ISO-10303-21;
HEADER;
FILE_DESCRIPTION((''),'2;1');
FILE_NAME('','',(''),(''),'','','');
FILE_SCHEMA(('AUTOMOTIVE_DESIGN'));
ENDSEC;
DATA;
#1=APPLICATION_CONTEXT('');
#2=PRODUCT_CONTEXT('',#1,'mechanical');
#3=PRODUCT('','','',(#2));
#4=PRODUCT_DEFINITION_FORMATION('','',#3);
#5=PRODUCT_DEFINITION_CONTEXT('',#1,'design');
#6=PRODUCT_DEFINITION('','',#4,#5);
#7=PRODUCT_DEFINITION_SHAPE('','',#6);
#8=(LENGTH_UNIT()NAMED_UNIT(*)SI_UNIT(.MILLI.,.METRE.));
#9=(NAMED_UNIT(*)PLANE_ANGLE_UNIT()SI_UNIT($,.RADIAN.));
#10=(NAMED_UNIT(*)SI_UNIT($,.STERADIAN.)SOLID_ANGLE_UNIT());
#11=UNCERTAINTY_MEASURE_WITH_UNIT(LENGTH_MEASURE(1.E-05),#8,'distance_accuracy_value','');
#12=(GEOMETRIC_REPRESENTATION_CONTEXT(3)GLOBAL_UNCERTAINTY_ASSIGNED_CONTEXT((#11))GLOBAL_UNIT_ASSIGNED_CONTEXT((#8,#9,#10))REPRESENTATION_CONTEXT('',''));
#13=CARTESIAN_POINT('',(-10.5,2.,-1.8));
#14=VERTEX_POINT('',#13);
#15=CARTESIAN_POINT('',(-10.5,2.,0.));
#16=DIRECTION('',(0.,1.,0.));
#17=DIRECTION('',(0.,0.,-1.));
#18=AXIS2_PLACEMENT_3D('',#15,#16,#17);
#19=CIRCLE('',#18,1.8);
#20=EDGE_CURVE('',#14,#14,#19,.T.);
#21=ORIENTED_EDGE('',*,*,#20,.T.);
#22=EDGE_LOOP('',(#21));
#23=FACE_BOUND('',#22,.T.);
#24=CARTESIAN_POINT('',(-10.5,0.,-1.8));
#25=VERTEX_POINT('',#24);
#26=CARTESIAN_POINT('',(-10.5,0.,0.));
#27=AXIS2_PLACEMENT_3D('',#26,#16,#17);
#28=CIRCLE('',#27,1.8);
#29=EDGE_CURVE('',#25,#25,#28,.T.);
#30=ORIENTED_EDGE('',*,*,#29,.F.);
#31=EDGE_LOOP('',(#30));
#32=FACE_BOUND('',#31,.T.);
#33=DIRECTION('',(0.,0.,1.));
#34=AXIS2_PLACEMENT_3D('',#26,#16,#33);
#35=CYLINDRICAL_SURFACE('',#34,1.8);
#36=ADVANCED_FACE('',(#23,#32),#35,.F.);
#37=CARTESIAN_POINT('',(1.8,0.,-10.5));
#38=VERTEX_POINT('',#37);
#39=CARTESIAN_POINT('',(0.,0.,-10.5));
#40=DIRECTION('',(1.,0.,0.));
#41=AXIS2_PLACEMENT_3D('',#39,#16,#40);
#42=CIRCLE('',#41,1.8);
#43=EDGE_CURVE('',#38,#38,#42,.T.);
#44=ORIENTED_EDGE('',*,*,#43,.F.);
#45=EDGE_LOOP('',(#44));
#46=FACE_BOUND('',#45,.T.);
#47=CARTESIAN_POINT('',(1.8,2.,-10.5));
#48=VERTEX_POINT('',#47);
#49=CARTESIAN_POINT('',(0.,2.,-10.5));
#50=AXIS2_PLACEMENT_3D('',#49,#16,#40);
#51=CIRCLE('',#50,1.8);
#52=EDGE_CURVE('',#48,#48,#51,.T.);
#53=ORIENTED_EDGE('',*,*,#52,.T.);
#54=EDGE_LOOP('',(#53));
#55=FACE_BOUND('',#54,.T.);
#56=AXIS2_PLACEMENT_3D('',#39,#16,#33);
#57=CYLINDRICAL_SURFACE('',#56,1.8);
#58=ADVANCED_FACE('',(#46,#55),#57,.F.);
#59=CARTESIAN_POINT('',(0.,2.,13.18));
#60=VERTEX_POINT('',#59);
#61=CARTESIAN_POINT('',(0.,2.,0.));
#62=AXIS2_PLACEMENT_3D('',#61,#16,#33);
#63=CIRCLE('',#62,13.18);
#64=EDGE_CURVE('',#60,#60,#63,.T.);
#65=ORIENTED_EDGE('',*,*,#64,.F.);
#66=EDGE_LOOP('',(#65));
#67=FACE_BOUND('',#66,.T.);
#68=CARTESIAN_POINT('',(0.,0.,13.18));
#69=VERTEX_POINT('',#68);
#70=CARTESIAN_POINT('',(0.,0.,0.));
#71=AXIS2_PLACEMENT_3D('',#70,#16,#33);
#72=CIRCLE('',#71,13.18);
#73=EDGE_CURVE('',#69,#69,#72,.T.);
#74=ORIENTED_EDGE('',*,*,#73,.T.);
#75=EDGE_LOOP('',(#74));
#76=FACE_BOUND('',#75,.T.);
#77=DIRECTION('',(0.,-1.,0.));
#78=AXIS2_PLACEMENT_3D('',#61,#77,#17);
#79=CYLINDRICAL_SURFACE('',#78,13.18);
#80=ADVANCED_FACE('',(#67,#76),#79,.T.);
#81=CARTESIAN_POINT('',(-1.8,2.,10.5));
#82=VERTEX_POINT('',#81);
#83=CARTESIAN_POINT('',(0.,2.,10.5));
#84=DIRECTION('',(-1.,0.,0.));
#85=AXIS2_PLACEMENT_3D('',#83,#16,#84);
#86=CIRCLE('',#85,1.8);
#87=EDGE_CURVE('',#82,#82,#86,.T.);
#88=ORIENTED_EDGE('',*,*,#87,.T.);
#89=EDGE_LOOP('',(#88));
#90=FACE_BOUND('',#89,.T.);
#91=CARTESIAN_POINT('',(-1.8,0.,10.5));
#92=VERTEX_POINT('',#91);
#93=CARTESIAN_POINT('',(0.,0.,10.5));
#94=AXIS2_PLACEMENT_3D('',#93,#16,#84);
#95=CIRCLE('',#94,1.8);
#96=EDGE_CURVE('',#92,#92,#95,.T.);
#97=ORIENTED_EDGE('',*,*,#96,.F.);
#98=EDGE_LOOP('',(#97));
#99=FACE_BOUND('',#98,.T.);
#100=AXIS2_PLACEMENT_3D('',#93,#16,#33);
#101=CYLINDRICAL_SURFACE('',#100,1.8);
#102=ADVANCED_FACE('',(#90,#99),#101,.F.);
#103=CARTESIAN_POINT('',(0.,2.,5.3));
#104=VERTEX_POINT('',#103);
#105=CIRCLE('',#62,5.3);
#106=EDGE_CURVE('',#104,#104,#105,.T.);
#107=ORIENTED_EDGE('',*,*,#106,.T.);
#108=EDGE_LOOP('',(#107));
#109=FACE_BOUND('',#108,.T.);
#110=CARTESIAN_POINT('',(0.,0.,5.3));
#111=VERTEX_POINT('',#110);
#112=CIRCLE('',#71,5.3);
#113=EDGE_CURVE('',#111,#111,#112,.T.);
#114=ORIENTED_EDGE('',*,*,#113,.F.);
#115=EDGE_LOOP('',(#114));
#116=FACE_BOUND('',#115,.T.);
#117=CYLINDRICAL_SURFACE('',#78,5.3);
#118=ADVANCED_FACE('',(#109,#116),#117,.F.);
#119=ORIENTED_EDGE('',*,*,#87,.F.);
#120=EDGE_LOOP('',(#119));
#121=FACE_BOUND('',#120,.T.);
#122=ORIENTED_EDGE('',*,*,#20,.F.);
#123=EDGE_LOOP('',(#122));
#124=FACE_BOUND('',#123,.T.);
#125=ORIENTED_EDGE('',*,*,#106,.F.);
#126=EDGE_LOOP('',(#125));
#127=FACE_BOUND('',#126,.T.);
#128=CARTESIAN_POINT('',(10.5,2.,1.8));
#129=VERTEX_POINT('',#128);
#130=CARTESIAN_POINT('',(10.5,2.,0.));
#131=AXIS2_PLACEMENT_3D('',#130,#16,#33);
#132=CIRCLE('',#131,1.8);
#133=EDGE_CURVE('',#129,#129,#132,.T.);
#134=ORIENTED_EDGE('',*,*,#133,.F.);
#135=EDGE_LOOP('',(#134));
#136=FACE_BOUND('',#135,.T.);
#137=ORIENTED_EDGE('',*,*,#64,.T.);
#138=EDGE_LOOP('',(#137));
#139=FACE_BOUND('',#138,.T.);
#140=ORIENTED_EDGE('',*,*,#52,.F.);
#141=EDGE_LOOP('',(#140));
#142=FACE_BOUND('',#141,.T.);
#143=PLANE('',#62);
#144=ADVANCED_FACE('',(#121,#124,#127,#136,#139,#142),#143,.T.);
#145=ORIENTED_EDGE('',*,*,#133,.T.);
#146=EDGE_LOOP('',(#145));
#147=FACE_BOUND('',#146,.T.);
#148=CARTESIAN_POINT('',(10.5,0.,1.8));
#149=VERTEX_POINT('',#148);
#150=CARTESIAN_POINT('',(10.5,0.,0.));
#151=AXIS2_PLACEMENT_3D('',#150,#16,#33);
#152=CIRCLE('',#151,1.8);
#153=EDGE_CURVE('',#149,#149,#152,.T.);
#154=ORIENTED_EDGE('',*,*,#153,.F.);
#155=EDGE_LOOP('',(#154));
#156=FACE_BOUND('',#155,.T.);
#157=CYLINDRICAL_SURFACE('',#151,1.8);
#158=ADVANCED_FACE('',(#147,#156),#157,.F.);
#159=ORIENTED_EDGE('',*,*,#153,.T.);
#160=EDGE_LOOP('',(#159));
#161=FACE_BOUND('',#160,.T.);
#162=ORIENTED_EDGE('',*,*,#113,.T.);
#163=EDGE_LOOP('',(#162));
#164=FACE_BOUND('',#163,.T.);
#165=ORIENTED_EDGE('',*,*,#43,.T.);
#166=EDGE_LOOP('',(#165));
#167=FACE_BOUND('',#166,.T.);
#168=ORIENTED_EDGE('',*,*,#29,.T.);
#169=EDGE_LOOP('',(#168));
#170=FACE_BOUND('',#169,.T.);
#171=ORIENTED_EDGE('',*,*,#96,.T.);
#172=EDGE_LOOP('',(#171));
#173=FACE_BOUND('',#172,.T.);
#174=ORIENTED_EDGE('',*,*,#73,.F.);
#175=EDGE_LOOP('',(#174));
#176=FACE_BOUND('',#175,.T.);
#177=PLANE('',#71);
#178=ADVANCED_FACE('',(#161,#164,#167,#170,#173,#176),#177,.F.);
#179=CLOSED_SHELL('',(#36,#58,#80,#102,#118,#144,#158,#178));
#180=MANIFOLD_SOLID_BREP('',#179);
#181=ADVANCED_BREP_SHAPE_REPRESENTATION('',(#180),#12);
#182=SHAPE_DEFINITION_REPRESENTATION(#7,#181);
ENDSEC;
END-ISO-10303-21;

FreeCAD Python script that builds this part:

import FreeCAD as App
import Part
import Sketcher
from FreeCAD import Vector

doc = App.newDocument("Part")
body = doc.addObject("PartDesign::Body", "Body")

# Sketch on XZ plane
sketch1 = body.newObject("Sketcher::SketchObject", "Sketch")
sketch1.AttachmentSupport = (doc.getObject("XZ_Plane"), [""])
sketch1.MapMode = "FlatFace"
sketch1.addGeometry([
    Part.Circle(Vector(0, 0, 0), Vector(0, 0, 1), 13),
    Part.Circle(Vector(0, 0, 0), Vector(0, 0, 1), 5),
], False)
sketch1.addConstraint([
    Sketcher.Constraint("Coincident", 0, 3, -1, 1),
    Sketcher.Constraint("Coincident", 1, 3, -1, 1),
    Sketcher.Constraint("Diameter", 1, 10.6),
    Sketcher.Constraint("Diameter", 0, 26.36),
])
pad1 = body.newObject("PartDesign::Pad", "Pad")
pad1.Profile = sketch1
pad1.Length = 2
pad1.Reversed = True

# Sketch on XZ plane
sketch2 = body.newObject("Sketcher::SketchObject", "Sketch001")
sketch2.AttachmentSupport = (doc.getObject("XZ_Plane"), [""])
sketch2.MapMode = "FlatFace"
sketch2.AttachmentOffset = App.Placement(Vector(0, 0, -2), App.Rotation())
sketch2.addGeometry(Part.Circle(Vector(10.5, 0, 0), Vector(0, 0, 1), 1.8), False)
sketch2.addConstraint([
    Sketcher.Constraint("PointOnObject", 0, 3, -1),
    Sketcher.Constraint("Diameter", 0, 3.6),
    Sketcher.Constraint("DistanceX", -1, 1, 0, 3, 10.5),
])
pocket1 = body.newObject("PartDesign::Pocket", "Pocket")
pocket1.Profile = sketch2
pocket1.Length = 2
pocket1.Reversed = True
doc.recompute()

polarpattern = body.newObject("PartDesign::PolarPattern", "PolarPattern")
polarpattern.Originals = [pocket1]
polarpattern.Axis = (doc.getObject("Y_Axis"), [""])
polarpattern.Angle = 360
polarpattern.Occurrences = 4
body.Tip = polarpattern

doc.recompute()
